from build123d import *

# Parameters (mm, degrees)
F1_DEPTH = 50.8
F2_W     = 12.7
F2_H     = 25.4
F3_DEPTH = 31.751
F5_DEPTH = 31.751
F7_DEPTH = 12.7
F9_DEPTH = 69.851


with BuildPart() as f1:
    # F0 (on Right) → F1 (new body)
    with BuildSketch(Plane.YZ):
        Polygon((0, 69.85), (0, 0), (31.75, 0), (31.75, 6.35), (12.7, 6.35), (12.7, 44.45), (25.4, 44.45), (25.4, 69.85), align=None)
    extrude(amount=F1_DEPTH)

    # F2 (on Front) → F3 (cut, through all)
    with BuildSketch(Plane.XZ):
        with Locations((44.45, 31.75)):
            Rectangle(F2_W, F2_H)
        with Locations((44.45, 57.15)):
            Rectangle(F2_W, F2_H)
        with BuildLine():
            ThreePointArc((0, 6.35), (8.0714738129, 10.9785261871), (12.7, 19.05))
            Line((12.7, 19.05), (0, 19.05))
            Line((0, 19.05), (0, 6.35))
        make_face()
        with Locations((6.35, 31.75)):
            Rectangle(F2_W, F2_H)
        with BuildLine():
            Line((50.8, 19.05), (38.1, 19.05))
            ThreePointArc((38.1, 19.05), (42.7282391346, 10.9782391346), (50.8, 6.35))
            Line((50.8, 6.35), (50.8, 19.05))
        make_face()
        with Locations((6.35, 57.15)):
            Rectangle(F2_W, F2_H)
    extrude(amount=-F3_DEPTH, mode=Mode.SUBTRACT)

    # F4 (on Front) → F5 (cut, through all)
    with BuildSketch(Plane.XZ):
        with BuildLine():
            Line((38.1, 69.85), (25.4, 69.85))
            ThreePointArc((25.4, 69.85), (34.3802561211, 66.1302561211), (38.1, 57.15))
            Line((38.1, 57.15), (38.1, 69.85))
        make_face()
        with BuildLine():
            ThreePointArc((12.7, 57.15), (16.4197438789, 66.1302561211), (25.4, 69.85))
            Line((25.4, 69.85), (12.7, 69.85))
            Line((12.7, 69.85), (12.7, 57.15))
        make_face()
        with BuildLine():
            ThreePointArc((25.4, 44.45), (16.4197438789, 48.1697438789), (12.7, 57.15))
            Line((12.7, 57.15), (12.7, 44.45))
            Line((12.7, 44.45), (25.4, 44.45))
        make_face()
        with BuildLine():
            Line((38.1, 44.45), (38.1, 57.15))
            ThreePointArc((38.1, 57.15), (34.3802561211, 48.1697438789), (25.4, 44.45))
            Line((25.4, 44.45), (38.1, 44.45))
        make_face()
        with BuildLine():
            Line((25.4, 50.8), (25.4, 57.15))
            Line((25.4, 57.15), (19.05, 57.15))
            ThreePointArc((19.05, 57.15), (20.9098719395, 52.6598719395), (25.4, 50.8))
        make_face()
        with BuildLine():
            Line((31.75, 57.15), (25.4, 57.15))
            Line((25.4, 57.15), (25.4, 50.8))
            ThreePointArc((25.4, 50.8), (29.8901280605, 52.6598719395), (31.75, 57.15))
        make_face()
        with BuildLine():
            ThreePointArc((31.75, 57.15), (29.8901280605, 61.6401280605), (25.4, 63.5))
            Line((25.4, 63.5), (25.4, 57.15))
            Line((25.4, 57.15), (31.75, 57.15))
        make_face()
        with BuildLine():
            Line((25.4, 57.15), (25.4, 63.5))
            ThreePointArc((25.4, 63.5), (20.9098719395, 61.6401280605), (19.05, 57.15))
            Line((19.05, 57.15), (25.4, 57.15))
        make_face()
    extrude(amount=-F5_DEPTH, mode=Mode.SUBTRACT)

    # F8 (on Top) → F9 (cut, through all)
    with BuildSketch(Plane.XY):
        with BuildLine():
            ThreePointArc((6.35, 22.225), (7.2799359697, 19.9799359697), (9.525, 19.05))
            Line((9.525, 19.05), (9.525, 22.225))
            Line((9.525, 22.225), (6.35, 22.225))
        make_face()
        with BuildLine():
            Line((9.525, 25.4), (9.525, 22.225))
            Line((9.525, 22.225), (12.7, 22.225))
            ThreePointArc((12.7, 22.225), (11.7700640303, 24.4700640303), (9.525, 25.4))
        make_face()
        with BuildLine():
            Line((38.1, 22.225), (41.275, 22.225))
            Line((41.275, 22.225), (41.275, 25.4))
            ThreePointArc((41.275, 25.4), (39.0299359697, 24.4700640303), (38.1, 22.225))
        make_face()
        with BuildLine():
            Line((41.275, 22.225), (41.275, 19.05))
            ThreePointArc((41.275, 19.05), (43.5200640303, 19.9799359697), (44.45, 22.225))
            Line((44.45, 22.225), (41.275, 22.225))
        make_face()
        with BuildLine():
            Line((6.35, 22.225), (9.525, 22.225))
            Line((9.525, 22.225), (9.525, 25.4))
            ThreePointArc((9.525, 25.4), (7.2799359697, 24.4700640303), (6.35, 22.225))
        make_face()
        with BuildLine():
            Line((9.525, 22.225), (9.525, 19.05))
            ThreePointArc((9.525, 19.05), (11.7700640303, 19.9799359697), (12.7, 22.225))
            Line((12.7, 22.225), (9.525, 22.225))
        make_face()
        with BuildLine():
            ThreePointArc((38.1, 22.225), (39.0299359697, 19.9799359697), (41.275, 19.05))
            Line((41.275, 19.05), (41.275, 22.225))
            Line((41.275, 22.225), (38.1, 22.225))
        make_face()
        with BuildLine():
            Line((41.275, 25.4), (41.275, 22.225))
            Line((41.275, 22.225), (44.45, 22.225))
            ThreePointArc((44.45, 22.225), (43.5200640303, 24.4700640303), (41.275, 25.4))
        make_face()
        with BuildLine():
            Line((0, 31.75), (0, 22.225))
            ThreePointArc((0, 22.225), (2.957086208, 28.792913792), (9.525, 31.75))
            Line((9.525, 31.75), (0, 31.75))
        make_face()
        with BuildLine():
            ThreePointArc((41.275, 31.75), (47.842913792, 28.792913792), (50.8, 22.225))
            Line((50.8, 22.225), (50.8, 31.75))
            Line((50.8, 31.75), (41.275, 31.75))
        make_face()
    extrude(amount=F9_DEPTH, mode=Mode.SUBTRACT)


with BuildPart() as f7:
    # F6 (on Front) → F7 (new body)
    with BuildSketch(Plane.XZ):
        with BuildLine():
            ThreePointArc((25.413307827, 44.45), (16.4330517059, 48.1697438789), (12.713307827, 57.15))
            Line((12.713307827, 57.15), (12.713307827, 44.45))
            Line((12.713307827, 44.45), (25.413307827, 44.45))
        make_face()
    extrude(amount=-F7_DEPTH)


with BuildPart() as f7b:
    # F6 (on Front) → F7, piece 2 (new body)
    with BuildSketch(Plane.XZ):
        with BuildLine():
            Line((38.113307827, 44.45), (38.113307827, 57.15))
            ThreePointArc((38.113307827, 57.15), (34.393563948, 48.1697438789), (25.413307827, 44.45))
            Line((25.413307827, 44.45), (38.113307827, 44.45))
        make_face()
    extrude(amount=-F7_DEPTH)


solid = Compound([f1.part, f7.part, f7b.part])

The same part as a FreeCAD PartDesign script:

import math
import FreeCAD as App
import Part
import Sketcher
Q = App.Units.Quantity


def add_polygon(sketch, points):
    """Adds a closed chain of lines whose ends are joined by coincident constraints."""
    first, n = sketch.GeometryCount, len(points)
    for a, b in zip(points, points[1:] + points[:1]):
        sketch.addGeometry(Part.LineSegment(App.Vector(*a, 0), App.Vector(*b, 0)), False)
    for i in range(n):
        sketch.addConstraint(Sketcher.Constraint("Coincident", first + i, 2, first + (i + 1) % n, 1))

doc = App.newDocument("Part")
body = doc.addObject("PartDesign::Body", "Body")
body.AllowCompound = True

# Sketch on YZ plane
sketch1 = doc.addObject("Sketcher::SketchObject", "Sketch")
body.addObject(sketch1)
sketch1.AttachmentSupport = (doc.YZ_Plane, [""])
sketch1.MapMode = "FlatFace"
add_polygon(sketch1, [(0, 69.85), (0, 0), (31.75, 0), (31.75, 6.35), (12.7, 6.35), (12.7, 44.45), (25.4, 44.45), (25.4, 69.85)])  # lines 0-7
sketch1.addConstraint([
    Sketcher.Constraint("Vertical", 0),
    Sketcher.Constraint("Horizontal", 1),
    Sketcher.Constraint("Vertical", 2),
    Sketcher.Constraint("Horizontal", 3),
    Sketcher.Constraint("Vertical", 4),
    Sketcher.Constraint("Horizontal", 5),
    Sketcher.Constraint("Vertical", 6),
    Sketcher.Constraint("Horizontal", 7),
    Sketcher.Constraint("Coincident", 0, 2, -1, 1),
    Sketcher.Constraint("Equal", 7, 6),
    Sketcher.Constraint("DistanceX", 7, 2, 7, 1, Q("1 in")),
    Sketcher.Constraint("DistanceX", 5, 1, 5, 2, Q("0.5 in")),
    Sketcher.Constraint("DistanceY", 4, 1, 4, 2, Q("1.5 in")),
    Sketcher.Constraint("DistanceX", 1, 1, 1, 2, Q("1.25 in")),
    Sketcher.Constraint("DistanceY", 0, 2, 0, 1, Q("2.75 in")),
])
pad1 = doc.addObject("PartDesign::Pad", "Pad")
body.addObject(pad1)
pad1.Profile = sketch1
pad1.Length = Q("2 in")

# Sketch on XZ plane
sketch2 = doc.addObject("Sketcher::SketchObject", "Sketch001")
body.addObject(sketch2)
sketch2.AttachmentSupport = (doc.XZ_Plane, [""])
sketch2.MapMode = "FlatFace"
sketch2.addGeometry([
    Part.LineSegment(App.Vector(50.8, 69.85, 0), App.Vector(38.1, 69.85, 0)),  # 0
    Part.LineSegment(App.Vector(38.1, 69.85, 0), App.Vector(38.1, 19.05, 0)),  # 1
    Part.ArcOfCircle(Part.Circle(App.Vector(55.298789, 23.548789, 0), App.Vector(0, 0, 1), 17.777442), math.radians(-165.341241), math.radians(-104.658759)),  # 2
    Part.LineSegment(App.Vector(50.8, 6.35, 0), App.Vector(50.8, 69.85, 0)),  # 3
    Part.ArcOfCircle(Part.Circle(App.Vector(-4.500885, 23.550885, 0), App.Vector(0, 0, 1), 17.78), math.radians(-75.336416), math.radians(-14.663584)),  # 4
    Part.LineSegment(App.Vector(12.7, 19.05, 0), App.Vector(12.7, 69.85, 0)),  # 5
    Part.LineSegment(App.Vector(12.7, 69.85, 0), App.Vector(0, 69.85, 0)),  # 6
    Part.LineSegment(App.Vector(0, 69.85, 0), App.Vector(0, 6.35, 0)),  # 7
], False)
sketch2.addConstraint([
    Sketcher.Constraint("Coincident", 0, 2, 1, 1),
    Sketcher.Constraint("Coincident", 1, 2, 2, 1),
    Sketcher.Constraint("Coincident", 2, 2, 3, 1),
    Sketcher.Constraint("Coincident", 3, 2, 0, 1),
    Sketcher.Constraint("Coincident", 4, 2, 5, 1),
    Sketcher.Constraint("Coincident", 5, 2, 6, 1),
    Sketcher.Constraint("Coincident", 6, 2, 7, 1),
    Sketcher.Constraint("Coincident", 7, 2, 4, 1),
    Sketcher.Constraint("Horizontal", 0),
    Sketcher.Constraint("Vertical", 1),
    Sketcher.Constraint("Vertical", 3),
    Sketcher.Constraint("Vertical", 5),
    Sketcher.Constraint("Horizontal", 6),
    Sketcher.Constraint("Vertical", 7),
    Sketcher.Constraint("PointOnObject", 6, 2, -2),
    Sketcher.Constraint("Horizontal", 1, 2, 4, 2),
    Sketcher.Constraint("Horizontal", 3, 2, 5, 2),
    Sketcher.Constraint("Horizontal", 2, 2, 7, 2),
    Sketcher.Constraint("Equal", 0, 6),
    Sketcher.Constraint("Radius", 4, Q("0.7 in")),
    Sketcher.Constraint("DistanceY", 1, 2, 1, 1, Q("2 in")),
    Sketcher.Constraint("DistanceX", 0, 2, 0, 1, Q("0.5 in")),
    Sketcher.Constraint("DistanceY", 3, 1, 3, 2, Q("2.5 in")),
    Sketcher.Constraint("DistanceX", -1, 1, 2, 2, Q("2 in")),
    Sketcher.Constraint("DistanceY", -1, 1, 0, 2, Q("2.75 in")),
    Sketcher.Constraint("Radius", 2, Q("17.777442 mm")),
])
pocket1 = doc.addObject("PartDesign::Pocket", "Pocket")
body.addObject(pocket1)
pocket1.Profile = sketch2
pocket1.Type = "ThroughAll"

# Sketch on XZ plane
sketch3 = doc.addObject("Sketcher::SketchObject", "Sketch002")
body.addObject(sketch3)
sketch3.AttachmentSupport = (doc.XZ_Plane, [""])
sketch3.MapMode = "FlatFace"
sketch3.addGeometry([
    Part.LineSegment(App.Vector(38.1, 69.85, 0), App.Vector(25.4, 69.85, 0)),  # 0
    Part.ArcOfCircle(Part.Circle(App.Vector(25.4, 57.15, 0), App.Vector(0, 0, 1), 12.7), math.radians(0), math.radians(90)),  # 1
    Part.LineSegment(App.Vector(38.1, 57.15, 0), App.Vector(38.1, 69.85, 0)),  # 2
    Part.ArcOfCircle(Part.Circle(App.Vector(25.4, 57.15, 0), App.Vector(0, 0, 1), 12.7), math.radians(90), math.radians(180)),  # 3
    Part.LineSegment(App.Vector(25.4, 69.85, 0), App.Vector(12.7, 69.85, 0)),  # 4
    Part.LineSegment(App.Vector(12.7, 69.85, 0), App.Vector(12.7, 57.15, 0)),  # 5
    Part.ArcOfCircle(Part.Circle(App.Vector(25.4, 57.15, 0), App.Vector(0, 0, 1), 12.7), math.radians(180), math.radians(270)),  # 6
    Part.LineSegment(App.Vector(12.7, 57.15, 0), App.Vector(12.7, 44.45, 0)),  # 7
    Part.LineSegment(App.Vector(12.7, 44.45, 0), App.Vector(25.4, 44.45, 0)),  # 8
    Part.LineSegment(App.Vector(38.1, 44.45, 0), App.Vector(38.1, 57.15, 0)),  # 9
    Part.ArcOfCircle(Part.Circle(App.Vector(25.4, 57.15, 0), App.Vector(0, 0, 1), 12.7), math.radians(-90), math.radians(0)),  # 10
    Part.LineSegment(App.Vector(25.4, 44.45, 0), App.Vector(38.1, 44.45, 0)),  # 11
    Part.ArcOfCircle(Part.Circle(App.Vector(25.4, 57.15, 0), App.Vector(0, 0, 1), 6.35), math.radians(180), math.radians(270)),  # 12
    Part.ArcOfCircle(Part.Circle(App.Vector(25.4, 57.15, 0), App.Vector(0, 0, 1), 6.35), math.radians(-90), math.radians(0)),  # 13
    Part.ArcOfCircle(Part.Circle(App.Vector(25.4, 57.15, 0), App.Vector(0, 0, 1), 6.35), math.radians(0), math.radians(90)),  # 14
    Part.ArcOfCircle(Part.Circle(App.Vector(25.4, 57.15, 0), App.Vector(0, 0, 1), 6.35), math.radians(90), math.radians(180)),  # 15
], False)
sketch3.addConstraint([
    Sketcher.Constraint("Tangent", 0, 2, 1, 2),
    Sketcher.Constraint("Tangent", 1, 1, 2, 1),
    Sketcher.Constraint("Coincident", 2, 2, 0, 1),
    Sketcher.Constraint("Tangent", 3, 1, 4, 1),
    Sketcher.Constraint("Coincident", 4, 2, 5, 1),
    Sketcher.Constraint("Tangent", 5, 2, 3, 2),
    Sketcher.Constraint("Tangent", 6, 1, 7, 1),
    Sketcher.Constraint("Coincident", 7, 2, 8, 1),
    Sketcher.Constraint("Tangent", 8, 2, 6, 2),
    Sketcher.Constraint("Tangent", 9, 2, 10, 2),
    Sketcher.Constraint("Tangent", 10, 1, 11, 1),
    Sketcher.Constraint("Coincident", 11, 2, 9, 1),
    Sketcher.Constraint("Tangent", 12, 2, 13, 1),
    Sketcher.Constraint("Tangent", 13, 2, 14, 1),
    Sketcher.Constraint("Tangent", 14, 2, 15, 1),
    Sketcher.Constraint("Tangent", 15, 2, 12, 1),
    Sketcher.Constraint("Horizontal", 0),
    Sketcher.Constraint("Vertical", 2),
    Sketcher.Constraint("Horizontal", 4),
    Sketcher.Constraint("Vertical", 5),
    Sketcher.Constraint("Vertical", 7),
    Sketcher.Constraint("Horizontal", 8),
    Sketcher.Constraint("Vertical", 9),
    Sketcher.Constraint("Horizontal", 11),
    Sketcher.Constraint("Coincident", 3, 3, 1, 3),
    Sketcher.Constraint("Coincident", 6, 3, 1, 3),
    Sketcher.Constraint("Coincident", 10, 3, 1, 3),
    Sketcher.Constraint("Coincident", 12, 3, 1, 3),
    Sketcher.Constraint("Equal", 1, 3),
    Sketcher.Constraint("Equal", 3, 6),
    Sketcher.Constraint("Equal", 6, 10),
    Sketcher.Constraint("Equal", 12, 13),
    Sketcher.Constraint("Horizontal", 9, 2, 13, 2),
    Sketcher.Constraint("Horizontal", 13, 2, 15, 2),
    Sketcher.Constraint("Vertical", 10, 1, 12, 2),
    Sketcher.Constraint("Vertical", 12, 2, 14, 2),
    Sketcher.Constraint("Radius", 1, Q("0.5 in")),
    Sketcher.Constraint("Radius", 12, Q("0.25 in")),
    Sketcher.Constraint("DistanceX", -1, 1, 1, 3, Q("1 in")),
    Sketcher.Constraint("DistanceY", -1, 1, 12, 2, Q("2 in")),
])
pocket2 = doc.addObject("PartDesign::Pocket", "Pocket001")
body.addObject(pocket2)
pocket2.Profile = sketch3
pocket2.Type = "ThroughAll"

# Sketch on XY plane
sketch4 = doc.addObject("Sketcher::SketchObject", "Sketch003")
body.addObject(sketch4)
sketch4.AttachmentSupport = (doc.XY_Plane, [""])
sketch4.MapMode = "FlatFace"
sketch4.addGeometry([
    Part.ArcOfCircle(Part.Circle(App.Vector(9.525, 22.225, 0), App.Vector(0, 0, 1), 3.175), math.radians(180), math.radians(270)),  # 0
    Part.ArcOfCircle(Part.Circle(App.Vector(9.525, 22.225, 0), App.Vector(0, 0, 1), 3.175), math.radians(-90), math.radians(0)),  # 1
    Part.ArcOfCircle(Part.Circle(App.Vector(9.525, 22.225, 0), App.Vector(0, 0, 1), 3.175), math.radians(0), math.radians(90)),  # 2
    Part.ArcOfCircle(Part.Circle(App.Vector(9.525, 22.225, 0), App.Vector(0, 0, 1), 3.175), math.radians(90), math.radians(180)),  # 3
    Part.ArcOfCircle(Part.Circle(App.Vector(41.275, 22.225, 0), App.Vector(0, 0, 1), 3.175), math.radians(90), math.radians(180)),  # 4
    Part.ArcOfCircle(Part.Circle(App.Vector(41.275, 22.225, 0), App.Vector(0, 0, 1), 3.175), math.radians(180), math.radians(270)),  # 5
    Part.ArcOfCircle(Part.Circle(App.Vector(41.275, 22.225, 0), App.Vector(0, 0, 1), 3.175), math.radians(-90), math.radians(0)),  # 6
    Part.ArcOfCircle(Part.Circle(App.Vector(41.275, 22.225, 0), App.Vector(0, 0, 1), 3.175), math.radians(0), math.radians(90)),  # 7
    Part.LineSegment(App.Vector(0, 31.75, 0), App.Vector(0, 22.225, 0)),  # 8
    Part.ArcOfCircle(Part.Circle(App.Vector(10.141291, 21.608709, 0), App.Vector(0, 0, 1), 10.16), math.radians(93.477615), math.radians(176.522385)),  # 9
    Part.LineSegment(App.Vector(9.525, 31.75, 0), App.Vector(0, 31.75, 0)),  # 10
    Part.ArcOfCircle(Part.Circle(App.Vector(40.658709, 21.608709, 0), App.Vector(0, 0, 1), 10.16), math.radians(3.477615), math.radians(86.522385)),  # 11
    Part.LineSegment(App.Vector(50.8, 22.225, 0), App.Vector(50.8, 31.75, 0)),  # 12
    Part.LineSegment(App.Vector(50.8, 31.75, 0), App.Vector(41.275, 31.75, 0)),  # 13
], False)
sketch4.addConstraint([
    Sketcher.Constraint("Tangent", 0, 2, 1, 1),
    Sketcher.Constraint("Tangent", 1, 2, 2, 1),
    Sketcher.Constraint("Tangent", 2, 2, 3, 1),
    Sketcher.Constraint("Tangent", 3, 2, 0, 1),
    Sketcher.Constraint("Tangent", 4, 2, 5, 1),
    Sketcher.Constraint("Tangent", 5, 2, 6, 1),
    Sketcher.Constraint("Tangent", 6, 2, 7, 1),
    Sketcher.Constraint("Tangent", 7, 2, 4, 1),
    Sketcher.Constraint("Coincident", 8, 2, 9, 2),
    Sketcher.Constraint("Coincident", 9, 1, 10, 1),
    Sketcher.Constraint("Coincident", 10, 2, 8, 1),
    Sketcher.Constraint("Coincident", 11, 1, 12, 1),
    Sketcher.Constraint("Coincident", 12, 2, 13, 1),
    Sketcher.Constraint("Coincident", 13, 2, 11, 2),
    Sketcher.Constraint("Vertical", 8),
    Sketcher.Constraint("Horizontal", 10),
    Sketcher.Constraint("Vertical", 12),
    Sketcher.Constraint("Horizontal", 13),
    Sketcher.Constraint("Equal", 0, 1),
    Sketcher.Constraint("Equal", 3, 4),
    Sketcher.Constraint("Equal", 4, 5),
    Sketcher.Constraint("Equal", 9, 11),
    Sketcher.Constraint("PointOnObject", 8, 2, -2),
    Sketcher.Constraint("Horizontal", 3, 3, 4, 3),
    Sketcher.Constraint("Horizontal", 9, 3, 11, 3),
    Sketcher.Constraint("Horizontal", 7, 3, 1, 2),
    Sketcher.Constraint("Horizontal", 1, 2, 3, 2),
    Sketcher.Constraint("Horizontal", 3, 2, 4, 2),
    Sketcher.Constraint("Horizontal", 4, 2, 6, 2),
    Sketcher.Constraint("Horizontal", 6, 2, 8, 2),
    Sketcher.Constraint("Horizontal", 8, 2, 11, 1),
    Sketcher.Constraint("Horizontal", 10, 2, 12, 2),
    Sketcher.Constraint("Vertical", 3, 3, 0, 2),
    Sketcher.Constraint("Vertical", 0, 2, 2, 2),
    Sketcher.Constraint("Vertical", 7, 3, 5, 2),
    Sketcher.Constraint("Vertical", 5, 2, 7, 2),
    Sketcher.Constraint("Vertical", 2, 2, 9, 1),
    Sketcher.Constraint("Vertical", 7, 2, 13, 2),
    Sketcher.Constraint("Equal", 13, 8),
    Sketcher.Constraint("Radius", 9, Q("0.4 in")),
    Sketcher.Constraint("DistanceY", -1, 1, 2, 2, Q("1 in")),
    Sketcher.Constraint("DistanceX", -1, 1, 11, 1, Q("2 in")),
    Sketcher.Constraint("Radius", 0, Q("0.125 in")),
    Sketcher.Constraint("DistanceX", -1, 1, 1, 2, Q("0.5 in")),
])
pocket3 = doc.addObject("PartDesign::Pocket", "Pocket002")
body.addObject(pocket3)
pocket3.Profile = sketch4
pocket3.Type = "ThroughAll"
pocket3.Reversed = True
body2 = doc.addObject("PartDesign::Body", "Body001")

# Sketch on XZ plane
sketch5 = doc.addObject("Sketcher::SketchObject", "Sketch004")
body2.addObject(sketch5)
sketch5.AttachmentSupport = (doc.getObject("XZ_Plane001"), [""])
sketch5.MapMode = "FlatFace"
sketch5.addGeometry([
    Part.ArcOfCircle(Part.Circle(App.Vector(25.413308, 57.15, 0), App.Vector(0, 0, 1), 12.7), math.radians(180), math.radians(270)),
    Part.LineSegment(App.Vector(12.713308, 57.15, 0), App.Vector(12.713308, 44.45, 0)),
    Part.LineSegment(App.Vector(12.713308, 44.45, 0), App.Vector(25.413308, 44.45, 0)),
], False)
sketch5.addConstraint([
    Sketcher.Constraint("Tangent", 0, 1, 1, 1),
    Sketcher.Constraint("Coincident", 1, 2, 2, 1),
    Sketcher.Constraint("Tangent", 2, 2, 0, 2),
    Sketcher.Constraint("Vertical", 1),
    Sketcher.Constraint("Horizontal", 2),
    Sketcher.Constraint("Radius", 0, Q("0.5 in")),
    Sketcher.Constraint("DistanceY", -1, 1, 0, 3, Q("2.25 in")),
    Sketcher.Constraint("DistanceX", -1, 1, 0, 3, Q("25.413308 mm")),
])
pad2 = doc.addObject("PartDesign::Pad", "Pad001")
body2.addObject(pad2)
pad2.Profile = sketch5
pad2.Length = Q("0.5 in")
pad2.Reversed = True
body3 = doc.addObject("PartDesign::Body", "Body002")

# Sketch on XZ plane
sketch6 = doc.addObject("Sketcher::SketchObject", "Sketch005")
body3.addObject(sketch6)
sketch6.AttachmentSupport = (doc.getObject("XZ_Plane002"), [""])
sketch6.MapMode = "FlatFace"
sketch6.addGeometry([
    Part.LineSegment(App.Vector(38.113308, 44.45, 0), App.Vector(38.113308, 57.15, 0)),
    Part.ArcOfCircle(Part.Circle(App.Vector(25.413308, 57.15, 0), App.Vector(0, 0, 1), 12.7), math.radians(-90), math.radians(0)),
    Part.LineSegment(App.Vector(25.413308, 44.45, 0), App.Vector(38.113308, 44.45, 0)),
], False)
sketch6.addConstraint([
    Sketcher.Constraint("Tangent", 0, 2, 1, 2),
    Sketcher.Constraint("Tangent", 1, 1, 2, 1),
    Sketcher.Constraint("Coincident", 2, 2, 0, 1),
    Sketcher.Constraint("Vertical", 0),
    Sketcher.Constraint("Horizontal", 2),
    Sketcher.Constraint("Radius", 1, Q("0.5 in")),
    Sketcher.Constraint("DistanceY", -1, 1, 1, 3, Q("2.25 in")),
    Sketcher.Constraint("DistanceX", -1, 1, 1, 3, Q("25.413308 mm")),
])
pad3 = doc.addObject("PartDesign::Pad", "Pad002")
body3.addObject(pad3)
pad3.Profile = sketch6
pad3.Length = Q("0.5 in")
pad3.Reversed = True

doc.recompute()
